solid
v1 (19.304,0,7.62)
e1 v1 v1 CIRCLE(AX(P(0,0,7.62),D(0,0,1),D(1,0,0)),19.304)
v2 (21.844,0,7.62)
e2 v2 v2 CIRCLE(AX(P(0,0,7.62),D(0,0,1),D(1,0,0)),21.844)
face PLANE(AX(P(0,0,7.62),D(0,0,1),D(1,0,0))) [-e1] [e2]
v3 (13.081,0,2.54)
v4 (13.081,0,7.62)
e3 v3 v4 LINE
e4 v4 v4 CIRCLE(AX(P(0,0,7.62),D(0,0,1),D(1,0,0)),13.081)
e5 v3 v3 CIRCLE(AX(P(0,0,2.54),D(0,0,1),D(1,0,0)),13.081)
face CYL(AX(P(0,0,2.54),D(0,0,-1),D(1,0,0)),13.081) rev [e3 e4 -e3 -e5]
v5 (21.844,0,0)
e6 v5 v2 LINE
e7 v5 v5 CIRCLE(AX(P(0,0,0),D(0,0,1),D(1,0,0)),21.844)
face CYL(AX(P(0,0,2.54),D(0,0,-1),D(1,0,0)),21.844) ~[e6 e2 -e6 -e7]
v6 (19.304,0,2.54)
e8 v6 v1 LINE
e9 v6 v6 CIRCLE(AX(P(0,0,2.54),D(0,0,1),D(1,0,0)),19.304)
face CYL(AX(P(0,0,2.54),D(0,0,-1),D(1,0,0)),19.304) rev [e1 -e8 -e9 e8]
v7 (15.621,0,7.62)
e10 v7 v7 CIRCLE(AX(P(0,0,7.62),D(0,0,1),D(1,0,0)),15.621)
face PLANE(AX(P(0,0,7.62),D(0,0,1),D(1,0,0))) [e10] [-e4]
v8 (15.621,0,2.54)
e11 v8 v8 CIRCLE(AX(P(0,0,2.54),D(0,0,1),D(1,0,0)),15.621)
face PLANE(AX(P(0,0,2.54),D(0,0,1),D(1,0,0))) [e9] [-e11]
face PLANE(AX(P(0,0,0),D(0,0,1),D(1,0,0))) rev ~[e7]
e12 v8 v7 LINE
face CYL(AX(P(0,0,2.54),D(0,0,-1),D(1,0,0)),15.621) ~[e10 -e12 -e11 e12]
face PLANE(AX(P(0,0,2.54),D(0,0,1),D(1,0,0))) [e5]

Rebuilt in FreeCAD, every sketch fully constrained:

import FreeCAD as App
import Part
import Sketcher
Q = App.Units.Quantity

doc = App.newDocument("Part")
body = doc.addObject("PartDesign::Body", "Body")

# Sketch on XY plane
sketch1 = doc.addObject("Sketcher::SketchObject", "Sketch")
body.addObject(sketch1)
sketch1.AttachmentSupport = (doc.XY_Plane, [""])
sketch1.MapMode = "FlatFace"
sketch1.addGeometry(Part.Circle(App.Vector(0, 0, 0), App.Vector(0, 0, 1), 22), False)
sketch1.addConstraint(Sketcher.Constraint("Coincident", 0, 3, -1, 1))
sketch1.addConstraint(Sketcher.Constraint("Diameter", 0, Q("1.72 in")))
pad1 = doc.addObject("PartDesign::Pad", "Pad")
body.addObject(pad1)
pad1.Profile = sketch1
pad1.Length = Q("0.1 in")

# Sketch on XY plane
sketch2 = doc.addObject("Sketcher::SketchObject", "Sketch001")
body.addObject(sketch2)
sketch2.AttachmentSupport = (doc.XY_Plane, [""])
sketch2.MapMode = "FlatFace"
sketch2.AttachmentOffset = App.Placement(App.Vector(0, 0, 0.1 * 25.4), App.Rotation())
sketch2.addGeometry(Part.Circle(App.Vector(0, 0, 0), App.Vector(0, 0, 1), 22), False)
sketch2.addGeometry(Part.Circle(App.Vector(0, 0, 0), App.Vector(0, 0, 1), 19), False)
sketch2.addGeometry(Part.Circle(App.Vector(0, 0, 0), App.Vector(0, 0, 1), 16), False)
sketch2.addGeometry(Part.Circle(App.Vector(0, 0, 0), App.Vector(0, 0, 1), 13), False)
sketch2.addConstraint(Sketcher.Constraint("Coincident", 0, 3, -1, 1))
sketch2.addConstraint(Sketcher.Constraint("Coincident", 1, 3, -1, 1))
sketch2.addConstraint(Sketcher.Constraint("Coincident", 2, 3, -1, 1))
sketch2.addConstraint(Sketcher.Constraint("Coincident", 3, 3, -1, 1))
sketch2.addConstraint(Sketcher.Constraint("Diameter", 0, Q("1.72 in")))
sketch2.addConstraint(Sketcher.Constraint("Diameter", 1, Q("1.52 in")))
sketch2.addConstraint(Sketcher.Constraint("Diameter", 2, Q("1.23 in")))
sketch2.addConstraint(Sketcher.Constraint("Diameter", 3, Q("1.03 in")))
pad2 = doc.addObject("PartDesign::Pad", "Pad001")
body.addObject(pad2)
pad2.Profile = sketch2
pad2.Length = Q("0.2 in")

doc.recompute()
